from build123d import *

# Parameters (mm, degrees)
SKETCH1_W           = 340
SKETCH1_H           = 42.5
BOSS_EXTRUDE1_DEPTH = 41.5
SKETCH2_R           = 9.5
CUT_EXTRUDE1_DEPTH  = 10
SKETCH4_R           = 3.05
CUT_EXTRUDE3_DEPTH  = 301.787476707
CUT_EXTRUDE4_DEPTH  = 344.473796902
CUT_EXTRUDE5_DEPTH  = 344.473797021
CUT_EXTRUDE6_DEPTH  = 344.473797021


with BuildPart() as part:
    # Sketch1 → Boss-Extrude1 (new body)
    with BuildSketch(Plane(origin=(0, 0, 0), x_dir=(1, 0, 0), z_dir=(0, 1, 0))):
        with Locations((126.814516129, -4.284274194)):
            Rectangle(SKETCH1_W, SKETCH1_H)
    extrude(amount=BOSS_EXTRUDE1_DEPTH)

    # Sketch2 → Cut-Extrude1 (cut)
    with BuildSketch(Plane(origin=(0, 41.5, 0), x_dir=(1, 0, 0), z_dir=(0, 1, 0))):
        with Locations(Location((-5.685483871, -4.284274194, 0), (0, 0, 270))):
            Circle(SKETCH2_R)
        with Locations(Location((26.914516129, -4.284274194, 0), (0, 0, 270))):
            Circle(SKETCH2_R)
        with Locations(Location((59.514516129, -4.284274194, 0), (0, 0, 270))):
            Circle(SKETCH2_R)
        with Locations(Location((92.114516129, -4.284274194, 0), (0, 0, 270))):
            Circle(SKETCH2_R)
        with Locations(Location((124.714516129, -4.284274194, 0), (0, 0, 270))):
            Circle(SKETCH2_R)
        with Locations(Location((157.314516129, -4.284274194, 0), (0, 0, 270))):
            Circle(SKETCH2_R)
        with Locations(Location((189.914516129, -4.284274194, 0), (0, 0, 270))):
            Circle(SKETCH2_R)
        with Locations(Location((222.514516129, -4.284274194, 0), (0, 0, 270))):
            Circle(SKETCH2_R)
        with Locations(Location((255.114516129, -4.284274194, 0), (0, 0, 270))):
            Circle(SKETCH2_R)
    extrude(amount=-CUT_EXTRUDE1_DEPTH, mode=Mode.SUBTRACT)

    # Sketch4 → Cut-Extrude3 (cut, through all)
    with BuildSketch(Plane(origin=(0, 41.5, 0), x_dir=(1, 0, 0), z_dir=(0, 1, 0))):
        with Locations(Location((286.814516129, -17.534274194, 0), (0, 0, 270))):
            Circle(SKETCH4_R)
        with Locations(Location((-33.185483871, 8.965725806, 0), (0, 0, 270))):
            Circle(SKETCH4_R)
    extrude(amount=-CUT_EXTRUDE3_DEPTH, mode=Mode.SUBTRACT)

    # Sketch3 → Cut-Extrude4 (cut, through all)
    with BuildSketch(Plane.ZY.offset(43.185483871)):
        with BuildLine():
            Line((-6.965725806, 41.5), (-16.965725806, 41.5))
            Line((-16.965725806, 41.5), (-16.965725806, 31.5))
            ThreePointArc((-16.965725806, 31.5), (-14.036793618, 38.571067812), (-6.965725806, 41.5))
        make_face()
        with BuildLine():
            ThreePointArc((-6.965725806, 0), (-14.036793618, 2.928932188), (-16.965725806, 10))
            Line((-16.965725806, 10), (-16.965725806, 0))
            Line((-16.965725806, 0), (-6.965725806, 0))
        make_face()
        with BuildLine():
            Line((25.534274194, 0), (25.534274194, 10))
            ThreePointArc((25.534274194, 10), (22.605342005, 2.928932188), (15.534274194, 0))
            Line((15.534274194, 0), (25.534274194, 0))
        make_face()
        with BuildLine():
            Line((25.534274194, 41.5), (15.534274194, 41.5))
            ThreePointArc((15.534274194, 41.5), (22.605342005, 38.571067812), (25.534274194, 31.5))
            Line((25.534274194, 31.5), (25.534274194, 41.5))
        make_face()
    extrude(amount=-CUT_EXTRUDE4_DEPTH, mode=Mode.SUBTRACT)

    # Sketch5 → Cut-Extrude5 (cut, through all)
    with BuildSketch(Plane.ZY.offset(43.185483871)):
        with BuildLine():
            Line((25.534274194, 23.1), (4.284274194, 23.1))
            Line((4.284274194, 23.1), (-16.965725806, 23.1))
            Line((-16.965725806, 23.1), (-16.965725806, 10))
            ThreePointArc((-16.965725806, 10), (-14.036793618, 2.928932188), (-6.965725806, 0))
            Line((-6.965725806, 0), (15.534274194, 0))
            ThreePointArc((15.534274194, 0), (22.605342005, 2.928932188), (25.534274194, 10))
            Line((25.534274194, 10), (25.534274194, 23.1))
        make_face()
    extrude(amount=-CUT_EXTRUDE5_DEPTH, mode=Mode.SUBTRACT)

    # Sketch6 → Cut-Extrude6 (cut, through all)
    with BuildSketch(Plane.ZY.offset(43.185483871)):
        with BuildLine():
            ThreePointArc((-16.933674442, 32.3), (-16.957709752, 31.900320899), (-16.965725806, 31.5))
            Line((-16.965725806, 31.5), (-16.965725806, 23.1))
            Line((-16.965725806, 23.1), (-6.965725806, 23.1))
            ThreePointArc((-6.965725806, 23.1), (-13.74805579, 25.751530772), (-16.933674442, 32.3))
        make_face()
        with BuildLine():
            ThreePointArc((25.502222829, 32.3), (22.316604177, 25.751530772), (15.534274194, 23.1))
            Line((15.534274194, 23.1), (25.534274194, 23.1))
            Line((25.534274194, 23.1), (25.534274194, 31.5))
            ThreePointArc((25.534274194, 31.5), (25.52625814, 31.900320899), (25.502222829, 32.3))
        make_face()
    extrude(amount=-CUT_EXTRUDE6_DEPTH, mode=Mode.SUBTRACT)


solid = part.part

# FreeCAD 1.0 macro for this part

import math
import FreeCAD as App
import Part
import Sketcher
from FreeCAD import Vector


def add_polygon(sketch, points):
    """Adds a closed chain of lines whose ends are joined by coincident constraints."""
    first, n = sketch.GeometryCount, len(points)
    for a, b in zip(points, points[1:] + points[:1]):
        sketch.addGeometry(Part.LineSegment(App.Vector(*a, 0), App.Vector(*b, 0)), False)
    for i in range(n):
        sketch.addConstraint(Sketcher.Constraint("Coincident", first + i, 2, first + (i + 1) % n, 1))

doc = App.newDocument("Part")
params = doc.addObject("Spreadsheet::Sheet", "Params")
for row, (alias, value) in enumerate([
    ("sketch1_width", "340 mm"),
    ("sketch1_height", "42.5 mm"),
    ("pad1_length", "41.5 mm"),
    ("sketch2_diameter", "19 mm"),
    ("pocket1_length", "10 mm"),
    ("sketch3_diameter", "6.1 mm"),
    ("sketch4_radius", "10 mm"),
    ("sketch5_radius", "10 mm"),
    ("sketch5_width", "13.1 mm"),
    ("sketch5_height", "42.5 mm"),
    ("sketch6_radius", "10 mm"),
    ("sketch6_width", "8.4 mm"),
], start=1):
    params.set(f"A{row}", alias)
    params.set(f"B{row}", "=" + value)
    params.setAlias(f"B{row}", alias)

body = doc.addObject("PartDesign::Body", "Body")

# Sketch on XZ plane
sketch1 = body.newObject("Sketcher::SketchObject", "Sketch")
sketch1.AttachmentSupport = (doc.getObject("XZ_Plane"), [""])
sketch1.MapMode = "FlatFace"
add_polygon(sketch1, [(-43, -17), (-43, 26), (297, 26), (297, -17)])  # lines 0-3
sketch1.addConstraint(Sketcher.Constraint("Vertical", 0))
sketch1.addConstraint(Sketcher.Constraint("Horizontal", 1))
sketch1.addConstraint(Sketcher.Constraint("Vertical", 2))
sketch1.addConstraint(Sketcher.Constraint("Horizontal", 3))
sketch1.addConstraint(Sketcher.Constraint("DistanceX", 1, 1, 1, 2, 340.0))
sketch1.addConstraint(Sketcher.Constraint("DistanceY", 0, 1, 0, 2, 42.5))
sketch1.addConstraint(Sketcher.Constraint("DistanceX", 0, 2, -1, 1, 43.185484))
sketch1.addConstraint(Sketcher.Constraint("DistanceY", -1, 1, 0, 2, 25.534274))
sketch1.setExpression("Constraints[8]", "Params.sketch1_width")
sketch1.setExpression("Constraints[9]", "Params.sketch1_height")
pad1 = body.newObject("PartDesign::Pad", "Pad")
pad1.Profile = sketch1
pad1.setExpression("Length", "Params.pad1_length")
pad1.Reversed = True

# Sketch on XZ plane
sketch2 = body.newObject("Sketcher::SketchObject", "Sketch001")
sketch2.AttachmentSupport = (doc.getObject("XZ_Plane"), [""])
sketch2.MapMode = "FlatFace"
sketch2.AttachmentOffset = App.Placement(Vector(0, 0, -41.5), App.Rotation())
sketch2.addGeometry(Part.Circle(Vector(-6, 4, 0), Vector(0, 0, 1), 10), False)
sketch2.addGeometry(Part.Circle(Vector(27, 4, 0), Vector(0, 0, 1), 10), False)
sketch2.addGeometry(Part.Circle(Vector(60, 4, 0), Vector(0, 0, 1), 10), False)
sketch2.addGeometry(Part.Circle(Vector(92, 4, 0), Vector(0, 0, 1), 10), False)
sketch2.addGeometry(Part.Circle(Vector(125, 4, 0), Vector(0, 0, 1), 10), False)
sketch2.addGeometry(Part.Circle(Vector(157, 4, 0), Vector(0, 0, 1), 10), False)
sketch2.addGeometry(Part.Circle(Vector(190, 4, 0), Vector(0, 0, 1), 10), False)
sketch2.addGeometry(Part.Circle(Vector(223, 4, 0), Vector(0, 0, 1), 10), False)
sketch2.addGeometry(Part.Circle(Vector(255, 4, 0), Vector(0, 0, 1), 10), False)
sketch2.addConstraint(Sketcher.Constraint("Equal", 0, 1))
sketch2.addConstraint(Sketcher.Constraint("Equal", 1, 2))
sketch2.addConstraint(Sketcher.Constraint("Equal", 2, 3))
sketch2.addConstraint(Sketcher.Constraint("Equal", 3, 4))
sketch2.addConstraint(Sketcher.Constraint("Equal", 4, 5))
sketch2.addConstraint(Sketcher.Constraint("Equal", 5, 6))
sketch2.addConstraint(Sketcher.Constraint("Equal", 6, 7))
sketch2.addConstraint(Sketcher.Constraint("Equal", 7, 8))
sketch2.addConstraint(Sketcher.Constraint("Horizontal", 0, 3, 1, 3))
sketch2.addConstraint(Sketcher.Constraint("Horizontal", 1, 3, 2, 3))
sketch2.addConstraint(Sketcher.Constraint("Horizontal", 2, 3, 3, 3))
sketch2.addConstraint(Sketcher.Constraint("Horizontal", 3, 3, 4, 3))
sketch2.addConstraint(Sketcher.Constraint("Horizontal", 4, 3, 5, 3))
sketch2.addConstraint(Sketcher.Constraint("Horizontal", 5, 3, 6, 3))
sketch2.addConstraint(Sketcher.Constraint("Horizontal", 6, 3, 7, 3))
sketch2.addConstraint(Sketcher.Constraint("Horizontal", 7, 3, 8, 3))
sketch2.addConstraint(Sketcher.Constraint("Diameter", 0, 19.0))
sketch2.addConstraint(Sketcher.Constraint("DistanceX", 0, 3, 5, 3, 163.0))
sketch2.addConstraint(Sketcher.Constraint("DistanceX", 1, 3, 6, 3, 163.0))
sketch2.addConstraint(Sketcher.Constraint("DistanceX", 2, 3, 7, 3, 163.0))
sketch2.addConstraint(Sketcher.Constraint("DistanceX", 3, 3, 8, 3, 163.0))
sketch2.addConstraint(Sketcher.Constraint("DistanceX", 0, 3, 1, 3, 32.6))
sketch2.addConstraint(Sketcher.Constraint("DistanceX", 1, 3, 2, 3, 32.6))
sketch2.addConstraint(Sketcher.Constraint("DistanceX", 2, 3, 3, 3, 32.6))
sketch2.addConstraint(Sketcher.Constraint("DistanceX", 3, 3, 4, 3, 32.6))
sketch2.addConstraint(Sketcher.Constraint("DistanceX", 0, 3, -1, 1, 5.685484))
sketch2.addConstraint(Sketcher.Constraint("DistanceY", -1, 1, 0, 3, 4.284274))
sketch2.setExpression("Constraints[16]", "Params.sketch2_diameter")
pocket1 = body.newObject("PartDesign::Pocket", "Pocket")
pocket1.Profile = sketch2
pocket1.setExpression("Length", "Params.pocket1_length")
pocket1.Reversed = True

# Sketch on XZ plane
sketch3 = body.newObject("Sketcher::SketchObject", "Sketch002")
sketch3.AttachmentSupport = (doc.getObject("XZ_Plane"), [""])
sketch3.MapMode = "FlatFace"
sketch3.AttachmentOffset = App.Placement(Vector(0, 0, -41.5), App.Rotation())
sketch3.addGeometry(Part.Circle(Vector(286.8, 17.5, 0), Vector(0, 0, 1), 3), False)
sketch3.addGeometry(Part.Circle(Vector(-33.2, -9, 0), Vector(0, 0, 1), 3), False)
sketch3.addConstraint(Sketcher.Constraint("Equal", 0, 1))
sketch3.addConstraint(Sketcher.Constraint("Diameter", 0, 6.1))
sketch3.addConstraint(Sketcher.Constraint("DistanceX", 1, 3, 0, 3, 320.0))
sketch3.addConstraint(Sketcher.Constraint("DistanceY", 1, 3, 0, 3, 26.5))
sketch3.addConstraint(Sketcher.Constraint("DistanceX", -1, 1, 0, 3, 286.814516))
sketch3.addConstraint(Sketcher.Constraint("DistanceY", -1, 1, 0, 3, 17.534274))
sketch3.setExpression("Constraints[1]", "Params.sketch3_diameter")
pocket2 = body.newObject("PartDesign::Pocket", "Pocket001")
pocket2.Profile = sketch3
pocket2.Type = "ThroughAll"
pocket2.Reversed = True

# Sketch on YZ plane
sketch4 = body.newObject("Sketcher::SketchObject", "Sketch003")
sketch4.AttachmentSupport = (doc.getObject("YZ_Plane"), [""])
sketch4.MapMode = "FlatFace"
sketch4.AttachmentOffset = App.Placement(Vector(0, 0, -43.185484), App.Rotation())
sketch4.addGeometry(Part.LineSegment(Vector(42, -7, 0), Vector(42, -17, 0)), False)
sketch4.addGeometry(Part.LineSegment(Vector(42, -17, 0), Vector(32, -17, 0)), False)
sketch4.addGeometry(Part.ArcOfCircle(Part.Circle(Vector(32, -7, 0), Vector(0, 0, 1), 10), math.radians(-90), math.radians(0)), False)
sketch4.addGeometry(Part.ArcOfCircle(Part.Circle(Vector(10, -7, 0), Vector(0, 0, 1), 10), math.radians(180), math.radians(270)), False)
sketch4.addGeometry(Part.LineSegment(Vector(10, -17, 0), Vector(0, -17, 0)), False)
sketch4.addGeometry(Part.LineSegment(Vector(0, -17, 0), Vector(0, -7, 0)), False)
sketch4.addGeometry(Part.LineSegment(Vector(0, 26, 0), Vector(10, 26, 0)), False)
sketch4.addGeometry(Part.ArcOfCircle(Part.Circle(Vector(10, 16, 0), Vector(0, 0, 1), 10), math.radians(90), math.radians(180)), False)
sketch4.addGeometry(Part.LineSegment(Vector(0, 16, 0), Vector(0, 26, 0)), False)
sketch4.addGeometry(Part.LineSegment(Vector(42, 26, 0), Vector(42, 16, 0)), False)
sketch4.addGeometry(Part.ArcOfCircle(Part.Circle(Vector(31, 16, 0), Vector(0, 0, 1), 10), math.radians(0), math.radians(90)), False)
sketch4.addGeometry(Part.LineSegment(Vector(32, 26, 0), Vector(42, 26, 0)), False)
sketch4.addConstraint(Sketcher.Constraint("Coincident", 0, 2, 1, 1))
sketch4.addConstraint(Sketcher.Constraint("Tangent", 1, 2, 2, 1))
sketch4.addConstraint(Sketcher.Constraint("Tangent", 2, 2, 0, 1))
sketch4.addConstraint(Sketcher.Constraint("Tangent", 3, 2, 4, 1))
sketch4.addConstraint(Sketcher.Constraint("Coincident", 4, 2, 5, 1))
sketch4.addConstraint(Sketcher.Constraint("Tangent", 5, 2, 3, 1))
sketch4.addConstraint(Sketcher.Constraint("Tangent", 6, 2, 7, 1))
sketch4.addConstraint(Sketcher.Constraint("Tangent", 7, 2, 8, 1))
sketch4.addConstraint(Sketcher.Constraint("Coincident", 8, 2, 6, 1))
sketch4.addConstraint(Sketcher.Constraint("Tangent", 9, 2, 10, 1))
sketch4.addConstraint(Sketcher.Constraint("Tangent", 10, 2, 11, 1))
sketch4.addConstraint(Sketcher.Constraint("Coincident", 11, 2, 9, 1))
sketch4.addConstraint(Sketcher.Constraint("Vertical", 0))
sketch4.addConstraint(Sketcher.Constraint("Horizontal", 1))
sketch4.addConstraint(Sketcher.Constraint("Horizontal", 4))
sketch4.addConstraint(Sketcher.Constraint("Vertical", 5))
sketch4.addConstraint(Sketcher.Constraint("Horizontal", 6))
sketch4.addConstraint(Sketcher.Constraint("Vertical", 8))
sketch4.addConstraint(Sketcher.Constraint("Vertical", 9))
sketch4.addConstraint(Sketcher.Constraint("Horizontal", 11))
sketch4.addConstraint(Sketcher.Constraint("Equal", 2, 3))
sketch4.addConstraint(Sketcher.Constraint("Equal", 3, 7))
sketch4.addConstraint(Sketcher.Constraint("Equal", 7, 10))
sketch4.addConstraint(Sketcher.Constraint("PointOnObject", 4, 2, -2))
sketch4.addConstraint(Sketcher.Constraint("PointOnObject", 7, 2, -2))
sketch4.addConstraint(Sketcher.Constraint("Horizontal", 2, 3, 3, 3))
sketch4.addConstraint(Sketcher.Constraint("Horizontal", 7, 3, 10, 3))
sketch4.addConstraint(Sketcher.Constraint("Vertical", 2, 3, 10, 3))
sketch4.addConstraint(Sketcher.Constraint("Radius", 2, 10.0))
sketch4.addConstraint(Sketcher.Constraint("DistanceX", -1, 1, 2, 3, 31.5))
sketch4.addConstraint(Sketcher.Constraint("DistanceY", 3, 3, 7, 3, 22.5))
sketch4.addConstraint(Sketcher.Constraint("DistanceY", 2, 3, -1, 1, 6.965726))
sketch4.setExpression("Constraints[28]", "Params.sketch4_radius")
pocket3 = body.newObject("PartDesign::Pocket", "Pocket002")
pocket3.Profile = sketch4
pocket3.Type = "ThroughAll"
pocket3.Reversed = True

# Sketch on YZ plane
sketch5 = body.newObject("Sketcher::SketchObject", "Sketch004")
sketch5.AttachmentSupport = (doc.getObject("YZ_Plane"), [""])
sketch5.MapMode = "FlatFace"
sketch5.AttachmentOffset = App.Placement(Vector(0, 0, -43.185484), App.Rotation())
sketch5.addGeometry(Part.LineSegment(Vector(23, 26, 0), Vector(23, -17, 0)), False)
sketch5.addGeometry(Part.LineSegment(Vector(23, -17, 0), Vector(10, -17, 0)), False)
sketch5.addGeometry(Part.ArcOfCircle(Part.Circle(Vector(10, -7, 0), Vector(0, 0, 1), 10), math.radians(180), math.radians(270)), False)
sketch5.addGeometry(Part.LineSegment(Vector(0, -7, 0), Vector(0, 16, 0)), False)
sketch5.addGeometry(Part.ArcOfCircle(Part.Circle(Vector(10, 16, 0), Vector(0, 0, 1), 10), math.radians(90), math.radians(180)), False)
sketch5.addGeometry(Part.LineSegment(Vector(10, 26, 0), Vector(23, 26, 0)), False)
sketch5.addConstraint(Sketcher.Constraint("Coincident", 0, 2, 1, 1))
sketch5.addConstraint(Sketcher.Constraint("Tangent", 1, 2, 2, 2))
sketch5.addConstraint(Sketcher.Constraint("Tangent", 2, 1, 3, 1))
sketch5.addConstraint(Sketcher.Constraint("Tangent", 3, 2, 4, 2))
sketch5.addConstraint(Sketcher.Constraint("Tangent", 4, 1, 5, 1))
sketch5.addConstraint(Sketcher.Constraint("Coincident", 5, 2, 0, 1))
sketch5.addConstraint(Sketcher.Constraint("Vertical", 0))
sketch5.addConstraint(Sketcher.Constraint("Horizontal", 1))
sketch5.addConstraint(Sketcher.Constraint("Vertical", 3))
sketch5.addConstraint(Sketcher.Constraint("Horizontal", 5))
sketch5.addConstraint(Sketcher.Constraint("Equal", 2, 4))
sketch5.addConstraint(Sketcher.Constraint("PointOnObject", 2, 1, -2))
sketch5.addConstraint(Sketcher.Constraint("Radius", 2, 10.0))
sketch5.addConstraint(Sketcher.Constraint("DistanceX", 1, 2, 1, 1, 13.1))
sketch5.addConstraint(Sketcher.Constraint("DistanceY", 0, 2, 0, 1, 42.5))
sketch5.addConstraint(Sketcher.Constraint("DistanceY", 2, 3, -1, 1, 6.965726))
sketch5.setExpression("Constraints[12]", "Params.sketch5_radius")
sketch5.setExpression("Constraints[13]", "Params.sketch5_width")
sketch5.setExpression("Constraints[14]", "Params.sketch5_height")
pocket4 = body.newObject("PartDesign::Pocket", "Pocket003")
pocket4.Profile = sketch5
pocket4.Type = "ThroughAll"
pocket4.Reversed = True

# Sketch on YZ plane
sketch6 = body.newObject("Sketcher::SketchObject", "Sketch005")
sketch6.AttachmentSupport = (doc.getObject("YZ_Plane"), [""])
sketch6.MapMode = "FlatFace"
sketch6.AttachmentOffset = App.Placement(Vector(0, 0, -43.185484), App.Rotation())
sketch6.addGeometry(Part.ArcOfCircle(Part.Circle(Vector(31.5, -7, 0), Vector(0, 0, 1), 10), math.radians(-90), math.radians(-85.41)), False)
sketch6.addGeometry(Part.LineSegment(Vector(31.5, -17, 0), Vector(23.1, -17, 0)), False)
sketch6.addGeometry(Part.LineSegment(Vector(23.1, -17, 0), Vector(23.1, -7, 0)), False)
sketch6.addGeometry(Part.ArcOfCircle(Part.Circle(Vector(33.1, -7, 0), Vector(0, 0, 1), 10), math.radians(180), math.radians(265)), False)
sketch6.addGeometry(Part.ArcOfCircle(Part.Circle(Vector(33.1, 15.5, 0), Vector(0, 0, 1), 10), math.radians(95), math.radians(180)), False)
sketch6.addGeometry(Part.LineSegment(Vector(23.1, 15.5, 0), Vector(23.1, 25.5, 0)), False)
sketch6.addGeometry(Part.LineSegment(Vector(23.1, 25.5, 0), Vector(31.5, 25.5, 0)), False)
sketch6.addGeometry(Part.ArcOfCircle(Part.Circle(Vector(31.5, 15.5, 0), Vector(0, 0, 1), 10), math.radians(85.41), math.radians(90)), False)
sketch6.addConstraint(Sketcher.Constraint("Tangent", 0, 1, 1, 1))
sketch6.addConstraint(Sketcher.Constraint("Coincident", 1, 2, 2, 1))
sketch6.addConstraint(Sketcher.Constraint("Tangent", 2, 2, 3, 1))
sketch6.addConstraint(Sketcher.Constraint("Coincident", 3, 2, 0, 2))
sketch6.addConstraint(Sketcher.Constraint("Tangent", 4, 2, 5, 1))
sketch6.addConstraint(Sketcher.Constraint("Coincident", 5, 2, 6, 1))
sketch6.addConstraint(Sketcher.Constraint("Tangent", 6, 2, 7, 2))
sketch6.addConstraint(Sketcher.Constraint("Coincident", 7, 1, 4, 1))
sketch6.addConstraint(Sketcher.Constraint("Horizontal", 1))
sketch6.addConstraint(Sketcher.Constraint("Vertical", 2))
sketch6.addConstraint(Sketcher.Constraint("Vertical", 5))
sketch6.addConstraint(Sketcher.Constraint("Horizontal", 6))
sketch6.addConstraint(Sketcher.Constraint("Equal", 0, 3))
sketch6.addConstraint(Sketcher.Constraint("Equal", 3, 4))
sketch6.addConstraint(Sketcher.Constraint("Equal", 4, 7))
sketch6.addConstraint(Sketcher.Constraint("Horizontal", 0, 3, 3, 3))
sketch6.addConstraint(Sketcher.Constraint("Horizontal", 4, 3, 7, 3))
sketch6.addConstraint(Sketcher.Constraint("Vertical", 3, 3, 4, 3))
sketch6.addConstraint(Sketcher.Constraint("Vertical", 0, 3, 7, 3))
sketch6.addConstraint(Sketcher.Constraint("Radius", 0, 10.0))
sketch6.addConstraint(Sketcher.Constraint("DistanceX", 1, 2, 1, 1, 8.4))
sketch6.addConstraint(Sketcher.Constraint("DistanceX", -1, 1, 0, 3, 31.5))
sketch6.addConstraint(Sketcher.Constraint("DistanceY", 3, 3, 4, 3, 22.5))
sketch6.addConstraint(Sketcher.Constraint("DistanceY", 0, 3, -1, 1, 6.965725))
sketch6.setExpression("Constraints[19]", "Params.sketch6_radius")
sketch6.setExpression("Constraints[20]", "Params.sketch6_width")
pocket5 = body.newObject("PartDesign::Pocket", "Pocket004")
pocket5.Profile = sketch6
pocket5.Type = "ThroughAll"
pocket5.Reversed = True

doc.recompute()
